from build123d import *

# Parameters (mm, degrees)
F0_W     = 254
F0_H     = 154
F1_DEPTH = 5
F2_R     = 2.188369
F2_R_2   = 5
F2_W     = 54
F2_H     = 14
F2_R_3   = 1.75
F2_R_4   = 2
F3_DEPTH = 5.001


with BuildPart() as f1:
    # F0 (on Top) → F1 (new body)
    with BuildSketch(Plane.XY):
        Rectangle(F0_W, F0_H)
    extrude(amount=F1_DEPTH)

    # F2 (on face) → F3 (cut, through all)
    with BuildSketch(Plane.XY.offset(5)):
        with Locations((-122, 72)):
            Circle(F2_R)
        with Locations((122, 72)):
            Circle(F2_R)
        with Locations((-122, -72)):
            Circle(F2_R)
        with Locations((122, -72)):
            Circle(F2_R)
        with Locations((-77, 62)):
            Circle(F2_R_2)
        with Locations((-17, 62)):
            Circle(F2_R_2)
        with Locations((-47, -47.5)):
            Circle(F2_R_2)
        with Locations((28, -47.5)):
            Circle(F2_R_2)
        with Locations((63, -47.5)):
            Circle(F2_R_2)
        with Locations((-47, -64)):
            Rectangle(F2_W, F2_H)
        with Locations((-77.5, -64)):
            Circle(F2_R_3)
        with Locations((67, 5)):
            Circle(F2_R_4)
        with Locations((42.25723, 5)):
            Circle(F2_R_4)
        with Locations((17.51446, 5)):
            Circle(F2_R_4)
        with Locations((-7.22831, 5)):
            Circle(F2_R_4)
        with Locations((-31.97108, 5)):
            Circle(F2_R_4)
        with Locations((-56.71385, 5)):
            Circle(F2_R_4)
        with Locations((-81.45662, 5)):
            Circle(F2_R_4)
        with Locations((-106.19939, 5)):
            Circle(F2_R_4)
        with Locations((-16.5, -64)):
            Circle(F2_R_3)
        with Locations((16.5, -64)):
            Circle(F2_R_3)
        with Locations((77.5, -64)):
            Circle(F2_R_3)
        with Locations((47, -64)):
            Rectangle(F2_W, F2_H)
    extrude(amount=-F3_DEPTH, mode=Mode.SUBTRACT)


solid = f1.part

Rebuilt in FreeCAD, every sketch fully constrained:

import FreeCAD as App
import Part
import Sketcher
from FreeCAD import Vector

doc = App.newDocument("Part")
body = doc.addObject("PartDesign::Body", "Body")

# Sketch on XY plane
sketch1 = body.newObject("Sketcher::SketchObject", "Sketch")
sketch1.AttachmentSupport = (doc.getObject("XY_Plane"), [""])
sketch1.MapMode = "FlatFace"
sketch1.addGeometry(Part.LineSegment(Vector(-127, 77, 0), Vector(-127, -77, 0)), False)
sketch1.addGeometry(Part.LineSegment(Vector(-127, -77, 0), Vector(127, -77, 0)), False)
sketch1.addGeometry(Part.LineSegment(Vector(127, -77, 0), Vector(127, 77, 0)), False)
sketch1.addGeometry(Part.LineSegment(Vector(127, 77, 0), Vector(-127, 77, 0)), False)
sketch1.addConstraint(Sketcher.Constraint("Coincident", 0, 2, 1, 1))
sketch1.addConstraint(Sketcher.Constraint("Coincident", 1, 2, 2, 1))
sketch1.addConstraint(Sketcher.Constraint("Coincident", 2, 2, 3, 1))
sketch1.addConstraint(Sketcher.Constraint("Coincident", 3, 2, 0, 1))
sketch1.addConstraint(Sketcher.Constraint("Vertical", 0))
sketch1.addConstraint(Sketcher.Constraint("Horizontal", 1))
sketch1.addConstraint(Sketcher.Constraint("Vertical", 2))
sketch1.addConstraint(Sketcher.Constraint("Horizontal", 3))
sketch1.addConstraint(Sketcher.Constraint("Symmetric", 0, 2, 2, 2, -1, 1))
sketch1.addConstraint(Sketcher.Constraint("DistanceX", 1, 1, 1, 2, 254.0))
sketch1.addConstraint(Sketcher.Constraint("DistanceY", 0, 2, 0, 1, 154.0))
pad1 = body.newObject("PartDesign::Pad", "Pad")
pad1.Profile = sketch1
pad1.Length = 5

# Sketch on XY plane
sketch2 = body.newObject("Sketcher::SketchObject", "Sketch001")
sketch2.AttachmentSupport = (doc.getObject("XY_Plane"), [""])
sketch2.MapMode = "FlatFace"
sketch2.AttachmentOffset = App.Placement(Vector(0, 0, 5), App.Rotation())
sketch2.addGeometry(Part.Circle(Vector(-122, 72, 0), Vector(0, 0, 1), 2.188369), False)
sketch2.addGeometry(Part.Circle(Vector(122, 72, 0), Vector(0, 0, 1), 2.188369), False)
sketch2.addGeometry(Part.Circle(Vector(-122, -72, 0), Vector(0, 0, 1), 2.188369), False)
sketch2.addGeometry(Part.Circle(Vector(122, -72, 0), Vector(0, 0, 1), 2.188369), False)
sketch2.addGeometry(Part.Circle(Vector(-77, 62, 0), Vector(0, 0, 1), 5), False)
sketch2.addGeometry(Part.Circle(Vector(-17, 62, 0), Vector(0, 0, 1), 5), False)
sketch2.addGeometry(Part.Circle(Vector(-47, -47.5, 0), Vector(0, 0, 1), 5), False)
sketch2.addGeometry(Part.Circle(Vector(28, -47.5, 0), Vector(0, 0, 1), 5), False)
sketch2.addGeometry(Part.Circle(Vector(63, -47.5, 0), Vector(0, 0, 1), 5), False)
sketch2.addGeometry(Part.LineSegment(Vector(-74, -57, 0), Vector(-74, -71, 0)), False)
sketch2.addGeometry(Part.LineSegment(Vector(-74, -71, 0), Vector(-20, -71, 0)), False)
sketch2.addGeometry(Part.LineSegment(Vector(-20, -71, 0), Vector(-20, -57, 0)), False)
sketch2.addGeometry(Part.LineSegment(Vector(-20, -57, 0), Vector(-74, -57, 0)), False)
sketch2.addGeometry(Part.Circle(Vector(-77.5, -64, 0), Vector(0, 0, 1), 1.75), False)
sketch2.addGeometry(Part.Circle(Vector(67, 5, 0), Vector(0, 0, 1), 2), False)
sketch2.addGeometry(Part.Circle(Vector(42.25723, 5, 0), Vector(0, 0, 1), 2), False)
sketch2.addGeometry(Part.Circle(Vector(17.51446, 5, 0), Vector(0, 0, 1), 2), False)
sketch2.addGeometry(Part.Circle(Vector(-7.22831, 5, 0), Vector(0, 0, 1), 2), False)
sketch2.addGeometry(Part.Circle(Vector(-31.97108, 5, 0), Vector(0, 0, 1), 2), False)
sketch2.addGeometry(Part.Circle(Vector(-56.71385, 5, 0), Vector(0, 0, 1), 2), False)
sketch2.addGeometry(Part.Circle(Vector(-81.45662, 5, 0), Vector(0, 0, 1), 2), False)
sketch2.addGeometry(Part.Circle(Vector(-106.19939, 5, 0), Vector(0, 0, 1), 2), False)
sketch2.addGeometry(Part.Circle(Vector(-16.5, -64, 0), Vector(0, 0, 1), 1.75), False)
sketch2.addGeometry(Part.Circle(Vector(16.5, -64, 0), Vector(0, 0, 1), 1.75), False)
sketch2.addGeometry(Part.Circle(Vector(77.5, -64, 0), Vector(0, 0, 1), 1.75), False)
sketch2.addGeometry(Part.LineSegment(Vector(20, -57, 0), Vector(20, -71, 0)), False)
sketch2.addGeometry(Part.LineSegment(Vector(20, -71, 0), Vector(74, -71, 0)), False)
sketch2.addGeometry(Part.LineSegment(Vector(74, -71, 0), Vector(74, -57, 0)), False)
sketch2.addGeometry(Part.LineSegment(Vector(74, -57, 0), Vector(20, -57, 0)), False)
sketch2.addConstraint(Sketcher.Constraint("Coincident", 9, 2, 10, 1))
sketch2.addConstraint(Sketcher.Constraint("Coincident", 10, 2, 11, 1))
sketch2.addConstraint(Sketcher.Constraint("Coincident", 11, 2, 12, 1))
sketch2.addConstraint(Sketcher.Constraint("Coincident", 12, 2, 9, 1))
sketch2.addConstraint(Sketcher.Constraint("Coincident", 25, 2, 26, 1))
sketch2.addConstraint(Sketcher.Constraint("Coincident", 26, 2, 27, 1))
sketch2.addConstraint(Sketcher.Constraint("Coincident", 27, 2, 28, 1))
sketch2.addConstraint(Sketcher.Constraint("Coincident", 28, 2, 25, 1))
sketch2.addConstraint(Sketcher.Constraint("Vertical", 9))
sketch2.addConstraint(Sketcher.Constraint("Horizontal", 10))
sketch2.addConstraint(Sketcher.Constraint("Vertical", 11))
sketch2.addConstraint(Sketcher.Constraint("Horizontal", 12))
sketch2.addConstraint(Sketcher.Constraint("Vertical", 25))
sketch2.addConstraint(Sketcher.Constraint("Horizontal", 26))
sketch2.addConstraint(Sketcher.Constraint("Vertical", 27))
sketch2.addConstraint(Sketcher.Constraint("Horizontal", 28))
sketch2.addConstraint(Sketcher.Constraint("Equal", 0, 1))
sketch2.addConstraint(Sketcher.Constraint("Equal", 1, 2))
sketch2.addConstraint(Sketcher.Constraint("Equal", 2, 3))
sketch2.addConstraint(Sketcher.Constraint("Equal", 4, 5))
sketch2.addConstraint(Sketcher.Constraint("Equal", 5, 6))
sketch2.addConstraint(Sketcher.Constraint("Equal", 6, 7))
sketch2.addConstraint(Sketcher.Constraint("Equal", 7, 8))
sketch2.addConstraint(Sketcher.Constraint("Equal", 14, 15))
sketch2.addConstraint(Sketcher.Constraint("Equal", 15, 16))
sketch2.addConstraint(Sketcher.Constraint("Equal", 16, 17))
sketch2.addConstraint(Sketcher.Constraint("Equal", 17, 18))
sketch2.addConstraint(Sketcher.Constraint("Equal", 18, 19))
sketch2.addConstraint(Sketcher.Constraint("Equal", 19, 20))
sketch2.addConstraint(Sketcher.Constraint("Equal", 20, 21))
sketch2.addConstraint(Sketcher.Constraint("Equal", 13, 22))
sketch2.addConstraint(Sketcher.Constraint("Equal", 22, 23))
sketch2.addConstraint(Sketcher.Constraint("Equal", 23, 24))
sketch2.addConstraint(Sketcher.Constraint("Symmetric", 1, 3, 2, 3, -1, 1))
sketch2.addConstraint(Sketcher.Constraint("Symmetric", 0, 3, 3, 3, -1, 1))
sketch2.addConstraint(Sketcher.Constraint("Symmetric", 0, 3, 1, 3, -2))
sketch2.addConstraint(Sketcher.Constraint("Symmetric", 22, 3, 23, 3, -2))
sketch2.addConstraint(Sketcher.Constraint("Symmetric", 13, 3, 24, 3, -2))
sketch2.addConstraint(Sketcher.Constraint("Symmetric", 10, 2, 25, 2, -2))
sketch2.addConstraint(Sketcher.Constraint("Symmetric", 12, 2, 27, 2, -2))
sketch2.addConstraint(Sketcher.Constraint("Horizontal", 4, 3, 5, 3))
sketch2.addConstraint(Sketcher.Constraint("Horizontal", 6, 3, 7, 3))
sketch2.addConstraint(Sketcher.Constraint("Horizontal", 7, 3, 8, 3))
sketch2.addConstraint(Sketcher.Constraint("Horizontal", 14, 3, 15, 3))
sketch2.addConstraint(Sketcher.Constraint("Horizontal", 15, 3, 16, 3))
sketch2.addConstraint(Sketcher.Constraint("Horizontal", 16, 3, 17, 3))
sketch2.addConstraint(Sketcher.Constraint("Horizontal", 17, 3, 18, 3))
sketch2.addConstraint(Sketcher.Constraint("Horizontal", 18, 3, 19, 3))
sketch2.addConstraint(Sketcher.Constraint("Horizontal", 19, 3, 20, 3))
sketch2.addConstraint(Sketcher.Constraint("Horizontal", 20, 3, 21, 3))
sketch2.addConstraint(Sketcher.Constraint("Horizontal", 13, 3, 22, 3))
sketch2.addConstraint(Sketcher.Constraint("Diameter", 4, 10.0))
sketch2.addConstraint(Sketcher.Constraint("Diameter", 14, 4.0))
sketch2.addConstraint(Sketcher.Constraint("Diameter", 13, 3.5))
sketch2.addConstraint(Sketcher.Constraint("DistanceX", 10, 1, 10, 2, 54.0))
sketch2.addConstraint(Sketcher.Constraint("DistanceY", 9, 2, 9, 1, 14.0))
sketch2.addConstraint(Sketcher.Constraint("DistanceX", 0, 3, -1, 1, 122.0))
sketch2.addConstraint(Sketcher.Constraint("DistanceY", -1, 1, 0, 3, 72.0))
sketch2.addConstraint(Sketcher.Constraint("DistanceX", 4, 3, -1, 1, 77.0))
sketch2.addConstraint(Sketcher.Constraint("DistanceY", -1, 1, 4, 3, 62.0))
sketch2.addConstraint(Sketcher.Constraint("DistanceX", 5, 3, -1, 1, 17.0))
sketch2.addConstraint(Sketcher.Constraint("DistanceX", 6, 3, -1, 1, 47.0))
sketch2.addConstraint(Sketcher.Constraint("DistanceX", -1, 1, 7, 3, 28.0))
sketch2.addConstraint(Sketcher.Constraint("DistanceX", -1, 1, 8, 3, 63.0))
sketch2.addConstraint(Sketcher.Constraint("DistanceY", 13, 3, -1, 1, 64.0))
sketch2.addConstraint(Sketcher.Constraint("DistanceX", -1, 1, 14, 3, 67.0))
sketch2.addConstraint(Sketcher.Constraint("DistanceY", -1, 1, 14, 3, 5.0))
sketch2.addConstraint(Sketcher.Constraint("DistanceX", 9, 2, -1, 1, 74.0))
sketch2.addConstraint(Sketcher.Constraint("DistanceY", 9, 2, -1, 1, 71.0))
sketch2.addConstraint(Sketcher.Constraint("DistanceX", 13, 3, 22, 3, 61.0))
sketch2.addConstraint(Sketcher.Constraint("DistanceX", 22, 3, 23, 3, 33.0))
sketch2.addConstraint(Sketcher.Constraint("DistanceY", 6, 3, -1, 1, 47.5))
sketch2.addConstraint(Sketcher.Constraint("Diameter", 0, 4.376738))
sketch2.addConstraint(Sketcher.Constraint("DistanceX", -1, 1, 15, 3, 42.25723))
sketch2.addConstraint(Sketcher.Constraint("DistanceX", -1, 1, 16, 3, 17.51446))
sketch2.addConstraint(Sketcher.Constraint("DistanceX", 17, 3, -1, 1, 7.22831))
sketch2.addConstraint(Sketcher.Constraint("DistanceX", 18, 3, -1, 1, 31.97108))
sketch2.addConstraint(Sketcher.Constraint("DistanceX", 19, 3, -1, 1, 56.71385))
sketch2.addConstraint(Sketcher.Constraint("DistanceX", 20, 3, -1, 1, 81.45662))
sketch2.addConstraint(Sketcher.Constraint("DistanceX", 21, 3, -1, 1, 106.19939))
pocket1 = body.newObject("PartDesign::Pocket", "Pocket")
pocket1.Profile = sketch2
pocket1.Type = "ThroughAll"

doc.recompute()
